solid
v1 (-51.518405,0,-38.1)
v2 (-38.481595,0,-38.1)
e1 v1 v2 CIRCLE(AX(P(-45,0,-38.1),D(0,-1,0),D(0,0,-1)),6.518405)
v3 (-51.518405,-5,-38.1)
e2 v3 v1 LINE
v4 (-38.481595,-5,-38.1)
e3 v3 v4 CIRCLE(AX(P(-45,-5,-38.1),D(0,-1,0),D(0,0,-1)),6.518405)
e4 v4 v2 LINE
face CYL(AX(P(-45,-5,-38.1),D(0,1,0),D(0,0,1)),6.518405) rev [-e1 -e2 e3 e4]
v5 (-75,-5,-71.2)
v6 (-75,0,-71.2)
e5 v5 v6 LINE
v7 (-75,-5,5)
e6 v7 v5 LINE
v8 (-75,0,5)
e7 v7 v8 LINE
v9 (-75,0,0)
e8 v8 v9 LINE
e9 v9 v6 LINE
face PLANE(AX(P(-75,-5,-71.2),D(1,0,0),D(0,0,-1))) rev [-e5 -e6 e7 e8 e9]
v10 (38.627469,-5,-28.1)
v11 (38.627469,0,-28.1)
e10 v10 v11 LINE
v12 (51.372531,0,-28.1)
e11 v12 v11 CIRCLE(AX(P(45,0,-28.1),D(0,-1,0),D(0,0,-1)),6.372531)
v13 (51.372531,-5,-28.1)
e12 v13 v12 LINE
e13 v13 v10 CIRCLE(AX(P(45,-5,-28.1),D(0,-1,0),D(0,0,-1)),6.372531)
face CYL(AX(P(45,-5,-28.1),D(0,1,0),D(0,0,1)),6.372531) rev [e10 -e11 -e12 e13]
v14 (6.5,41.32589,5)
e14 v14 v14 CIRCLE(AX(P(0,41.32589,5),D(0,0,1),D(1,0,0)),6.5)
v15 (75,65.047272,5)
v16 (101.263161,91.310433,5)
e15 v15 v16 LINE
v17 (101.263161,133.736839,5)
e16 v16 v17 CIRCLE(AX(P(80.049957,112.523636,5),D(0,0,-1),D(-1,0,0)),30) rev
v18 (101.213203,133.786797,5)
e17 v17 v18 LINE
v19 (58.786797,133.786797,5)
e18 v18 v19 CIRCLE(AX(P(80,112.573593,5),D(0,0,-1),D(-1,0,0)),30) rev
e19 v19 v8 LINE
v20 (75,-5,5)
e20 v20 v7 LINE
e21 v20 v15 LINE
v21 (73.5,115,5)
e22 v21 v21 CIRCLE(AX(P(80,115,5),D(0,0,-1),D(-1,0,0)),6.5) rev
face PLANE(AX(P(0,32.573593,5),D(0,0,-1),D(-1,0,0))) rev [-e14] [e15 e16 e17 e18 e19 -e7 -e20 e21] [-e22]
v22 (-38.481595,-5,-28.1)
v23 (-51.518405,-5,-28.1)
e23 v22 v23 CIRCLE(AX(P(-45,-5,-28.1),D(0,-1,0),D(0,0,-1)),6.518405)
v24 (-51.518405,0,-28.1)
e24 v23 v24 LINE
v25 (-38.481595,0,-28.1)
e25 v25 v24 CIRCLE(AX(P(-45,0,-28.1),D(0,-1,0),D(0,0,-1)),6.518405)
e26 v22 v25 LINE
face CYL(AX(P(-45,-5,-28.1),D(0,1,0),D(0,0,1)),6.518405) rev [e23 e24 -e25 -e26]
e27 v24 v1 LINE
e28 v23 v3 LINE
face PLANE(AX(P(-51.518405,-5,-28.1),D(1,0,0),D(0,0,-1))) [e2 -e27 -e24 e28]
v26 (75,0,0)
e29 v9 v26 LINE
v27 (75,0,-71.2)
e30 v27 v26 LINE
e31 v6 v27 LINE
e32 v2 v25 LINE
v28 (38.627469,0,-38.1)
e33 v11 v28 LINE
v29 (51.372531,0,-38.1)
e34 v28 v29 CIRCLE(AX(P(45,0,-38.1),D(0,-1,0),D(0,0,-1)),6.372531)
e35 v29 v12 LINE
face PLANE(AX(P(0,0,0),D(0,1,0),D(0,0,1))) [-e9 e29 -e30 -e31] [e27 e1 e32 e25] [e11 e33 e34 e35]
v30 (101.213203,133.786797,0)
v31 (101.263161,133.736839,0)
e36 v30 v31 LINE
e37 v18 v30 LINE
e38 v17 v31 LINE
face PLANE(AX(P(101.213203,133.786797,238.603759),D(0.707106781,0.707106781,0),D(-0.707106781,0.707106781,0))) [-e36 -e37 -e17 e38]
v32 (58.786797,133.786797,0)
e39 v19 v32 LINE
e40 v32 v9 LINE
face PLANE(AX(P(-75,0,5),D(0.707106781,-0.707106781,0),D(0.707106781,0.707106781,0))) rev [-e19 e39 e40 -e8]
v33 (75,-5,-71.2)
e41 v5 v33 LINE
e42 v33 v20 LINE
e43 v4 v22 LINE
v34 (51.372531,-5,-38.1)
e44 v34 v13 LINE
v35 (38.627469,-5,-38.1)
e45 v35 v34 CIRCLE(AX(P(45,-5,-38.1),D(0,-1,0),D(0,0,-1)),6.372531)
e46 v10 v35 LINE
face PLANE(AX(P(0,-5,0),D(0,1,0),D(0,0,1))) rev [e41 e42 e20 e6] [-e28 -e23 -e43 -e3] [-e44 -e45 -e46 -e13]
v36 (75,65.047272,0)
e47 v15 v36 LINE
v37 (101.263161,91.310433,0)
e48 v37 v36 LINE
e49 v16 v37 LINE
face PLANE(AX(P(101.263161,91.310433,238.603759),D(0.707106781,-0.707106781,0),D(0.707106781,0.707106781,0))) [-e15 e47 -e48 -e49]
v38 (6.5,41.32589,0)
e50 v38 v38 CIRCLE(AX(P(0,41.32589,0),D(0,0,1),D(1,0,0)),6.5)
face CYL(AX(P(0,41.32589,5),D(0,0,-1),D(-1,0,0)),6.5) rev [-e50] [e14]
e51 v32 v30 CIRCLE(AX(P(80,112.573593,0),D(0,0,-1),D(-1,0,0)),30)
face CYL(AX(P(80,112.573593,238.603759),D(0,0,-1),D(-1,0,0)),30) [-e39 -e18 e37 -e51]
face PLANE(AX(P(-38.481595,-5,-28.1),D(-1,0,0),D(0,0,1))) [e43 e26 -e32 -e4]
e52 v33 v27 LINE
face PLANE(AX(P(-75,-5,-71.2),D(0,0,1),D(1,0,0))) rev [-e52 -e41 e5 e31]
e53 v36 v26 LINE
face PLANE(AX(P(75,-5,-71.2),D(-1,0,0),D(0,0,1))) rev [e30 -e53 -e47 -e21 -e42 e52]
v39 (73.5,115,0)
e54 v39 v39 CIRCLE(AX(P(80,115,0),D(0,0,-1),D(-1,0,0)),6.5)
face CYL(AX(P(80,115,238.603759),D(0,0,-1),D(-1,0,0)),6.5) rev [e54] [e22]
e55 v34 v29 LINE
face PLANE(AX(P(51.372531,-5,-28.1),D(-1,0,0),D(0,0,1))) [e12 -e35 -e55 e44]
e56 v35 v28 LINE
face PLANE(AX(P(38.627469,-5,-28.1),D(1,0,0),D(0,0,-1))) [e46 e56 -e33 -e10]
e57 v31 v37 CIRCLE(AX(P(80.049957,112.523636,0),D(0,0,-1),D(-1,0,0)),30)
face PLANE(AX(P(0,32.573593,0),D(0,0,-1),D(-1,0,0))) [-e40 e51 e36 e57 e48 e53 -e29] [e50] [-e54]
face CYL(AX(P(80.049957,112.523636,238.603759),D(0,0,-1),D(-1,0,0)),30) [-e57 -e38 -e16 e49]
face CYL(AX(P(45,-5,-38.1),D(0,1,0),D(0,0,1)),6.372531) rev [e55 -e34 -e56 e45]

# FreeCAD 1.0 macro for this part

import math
import FreeCAD as App
import Part
import Sketcher

V = App.Vector
Q = App.Units.Quantity

doc = App.newDocument("Part")
params = doc.addObject("Spreadsheet::Sheet", "Params")
for row, (alias, value) in enumerate([
    ("sketch1_diameter", "13 mm"),
    ("sketch1_radius", "30 mm"),
    ("sketch1_width", "150 mm"),
    ("pad1_length", "5 mm"),
    ("sketch2_width", "150 mm"),
    ("sketch2_height", "10 mm"),
    ("sketch2_height2", "76.2 mm"),
    ("pad2_length", "5 mm"),
    ("sketch3_diameter", "20 mm"),
    ("sketch3_diameter2", "13 mm"),
    ("sketch3_radius", "30 mm"),
    ("sketch3_width", "150 mm"),
    ("pad3_length", "5 mm"),
], start=1):
    params.set(f"A{row}", alias)
    params.set(f"B{row}", "=" + value)
    params.setAlias(f"B{row}", alias)

body = doc.addObject("PartDesign::Body", "Body")

sketch1 = body.newObject("Sketcher::SketchObject", "Sketch")
sketch1.AttachmentSupport = (doc.getObject("XY_Plane"), [""])
sketch1.MapMode = "FlatFace"
sketch1.addGeometry([
    Part.LineSegment(V(-75, 0, 0), V(75, 0, 0)),
    Part.LineSegment(V(75, 0, 0), V(21, 54, 0)),
    Part.ArcOfCircle(Part.Circle(V(0, 33, 0), V(0, 0, 1), 30), math.radians(45), math.radians(135)),
    Part.LineSegment(V(-21, 54, 0), V(-75, 0, 0)),
    Part.Circle(V(0, 41, 0), V(0, 0, 1), 6),
], False)
sketch1.addConstraint([
    Sketcher.Constraint("Coincident", 0, 2, 1, 1),
    Sketcher.Constraint("Tangent", 1, 2, 2, 1),
    Sketcher.Constraint("Tangent", 2, 2, 3, 1),
    Sketcher.Constraint("Coincident", 3, 2, 0, 1),
    Sketcher.Constraint("Horizontal", 0),
    Sketcher.Constraint("Symmetric", 0, 2, 3, 2, -1, 1),
    Sketcher.Constraint("PointOnObject", 2, 3, -2),
    Sketcher.Constraint("PointOnObject", 4, 3, -2),
    Sketcher.Constraint("Perpendicular", 1, 3),
    Sketcher.Constraint("Diameter", 4, 13.0),
    Sketcher.Constraint("Radius", 2, 30.0),
    Sketcher.Constraint("DistanceX", 0, 1, 0, 2, 150.0),
    Sketcher.Constraint("DistanceY", -1, 1, 4, 3, 41.32589),
])
sketch1.setExpression("Constraints[9]", "Params.sketch1_diameter")
sketch1.setExpression("Constraints[10]", "Params.sketch1_radius")
sketch1.setExpression("Constraints[11]", "Params.sketch1_width")
pad1 = body.newObject("PartDesign::Pad", "Pad")
pad1.Profile = sketch1
pad1.setExpression("Length", "Params.pad1_length")

sketch2 = body.newObject("Sketcher::SketchObject", "Sketch001")
sketch2.AttachmentSupport = (doc.getObject("XZ_Plane"), [""])
sketch2.MapMode = "FlatFace"
sketch2.addGeometry([
    Part.LineSegment(V(-75, 5, 0), V(-75, -71, 0)),
    Part.LineSegment(V(-75, -71, 0), V(75, -71, 0)),
    Part.LineSegment(V(75, -71, 0), V(75, 5, 0)),
    Part.LineSegment(V(75, 5, 0), V(-75, 5, 0)),
    Part.ArcOfCircle(Part.Circle(V(45, -28, 0), V(0, 0, 1), 6), math.radians(0), math.radians(180)),
    Part.LineSegment(V(51, -28, 0), V(51, -38, 0)),
    Part.ArcOfCircle(Part.Circle(V(45, -38, 0), V(0, 0, 1), 6), math.radians(180), math.radians(360)),
    Part.LineSegment(V(39, -38, 0), V(39, -28, 0)),
    Part.ArcOfCircle(Part.Circle(V(-45, -28, 0), V(0, 0, 1), 7), math.radians(0), math.radians(180)),
    Part.LineSegment(V(-38, -28, 0), V(-38, -38, 0)),
    Part.ArcOfCircle(Part.Circle(V(-45, -38, 0), V(0, 0, 1), 7), math.radians(180), math.radians(360)),
    Part.LineSegment(V(-52, -38, 0), V(-52, -28, 0)),
], False)
sketch2.addConstraint([
    Sketcher.Constraint("Coincident", 0, 2, 1, 1),
    Sketcher.Constraint("Coincident", 1, 2, 2, 1),
    Sketcher.Constraint("Coincident", 2, 2, 3, 1),
    Sketcher.Constraint("Coincident", 3, 2, 0, 1),
    Sketcher.Constraint("Tangent", 4, 1, 5, 1),
    Sketcher.Constraint("Tangent", 5, 2, 6, 2),
    Sketcher.Constraint("Tangent", 6, 1, 7, 1),
    Sketcher.Constraint("Tangent", 7, 2, 4, 2),
    Sketcher.Constraint("Tangent", 8, 1, 9, 1),
    Sketcher.Constraint("Tangent", 9, 2, 10, 2),
    Sketcher.Constraint("Tangent", 10, 1, 11, 1),
    Sketcher.Constraint("Tangent", 11, 2, 8, 2),
    Sketcher.Constraint("Vertical", 0),
    Sketcher.Constraint("Horizontal", 1),
    Sketcher.Constraint("Vertical", 2),
    Sketcher.Constraint("Horizontal", 3),
    Sketcher.Constraint("Vertical", 5),
    Sketcher.Constraint("Vertical", 7),
    Sketcher.Constraint("Vertical", 9),
    Sketcher.Constraint("Vertical", 11),
    Sketcher.Constraint("Symmetric", 4, 3, 8, 3, -2),
    Sketcher.Constraint("Horizontal", 6, 3, 10, 3),
    Sketcher.Constraint("DistanceX", 1, 1, 1, 2, 150.0),
    Sketcher.Constraint("DistanceY", 5, 2, 5, 1, 10.0),
    Sketcher.Constraint("DistanceY", 0, 2, 0, 1, 76.2),
    Sketcher.Constraint("DistanceX", -1, 1, 4, 3, 45.0),
    Sketcher.Constraint("DistanceX", 0, 2, -1, 1, 75.0),
    Sketcher.Constraint("DistanceY", -1, 1, 2, 2, 5.0),
    Sketcher.Constraint("DistanceY", 4, 3, -1, 1, 28.1),
    Sketcher.Constraint("Radius", 4, 6.372531),
    Sketcher.Constraint("Radius", 8, 6.518405),
])
sketch2.setExpression("Constraints[22]", "Params.sketch2_width")
sketch2.setExpression("Constraints[23]", "Params.sketch2_height")
sketch2.setExpression("Constraints[24]", "Params.sketch2_height2")
pad2 = body.newObject("PartDesign::Pad", "Pad001")
pad2.Profile = sketch2
pad2.setExpression("Length", "Params.pad2_length")

sketch3 = body.newObject("Sketcher::SketchObject", "Sketch002")
sketch3.AttachmentSupport = (doc.getObject("XY_Plane"), [""])
sketch3.MapMode = "FlatFace"
sketch3.addGeometry([
    Part.LineSegment(V(-75, 0, 0), V(58.79, 133.79, 0)),
    Part.ArcOfCircle(Part.Circle(V(80, 112.57, 0), V(0, 0, 1), 30), math.radians(45), math.radians(135)),
    Part.LineSegment(V(101.21, 133.79, 0), V(101.26, 133.74, 0)),
    Part.ArcOfCircle(Part.Circle(V(80.05, 112.52, 0), V(0, 0, 1), 30), math.radians(-45), math.radians(45)),
    Part.LineSegment(V(101.26, 91.31, 0), V(75, 65.05, 0)),
    Part.LineSegment(V(75, 65.05, 0), V(75, 0, 0)),
    Part.LineSegment(V(75, 0, 0), V(-75, 0, 0)),
    Part.Circle(V(0, 41.33, 0), V(0, 0, 1), 10),
    Part.Circle(V(80, 115, 0), V(0, 0, 1), 6.5),
], False)
sketch3.addConstraint([
    Sketcher.Constraint("Tangent", 0, 2, 1, 2),
    Sketcher.Constraint("Tangent", 1, 1, 2, 1),
    Sketcher.Constraint("Tangent", 2, 2, 3, 2),
    Sketcher.Constraint("Tangent", 3, 1, 4, 1),
    Sketcher.Constraint("Coincident", 4, 2, 5, 1),
    Sketcher.Constraint("Coincident", 5, 2, 6, 1),
    Sketcher.Constraint("Coincident", 6, 2, 0, 1),
    Sketcher.Constraint("Vertical", 5),
    Sketcher.Constraint("Horizontal", 6),
    Sketcher.Constraint("Equal", 1, 3),
    Sketcher.Constraint("Symmetric", 5, 2, 6, 2, -1, 1),
    Sketcher.Constraint("PointOnObject", 7, 3, -2),
    Sketcher.Constraint("Parallel", 0, 4),
    Sketcher.Constraint("Horizontal", 0, 2, 1, 1),
    Sketcher.Constraint("Vertical", 1, 3, 8, 3),
    Sketcher.Constraint("Diameter", 7, 20.0),
    Sketcher.Constraint("Diameter", 8, 13.0),
    Sketcher.Constraint("Radius", 1, 30.0),
    Sketcher.Constraint("DistanceX", 6, 2, 6, 1, 150.0),
    Sketcher.Constraint("Angle", 0, Q("45 deg")),
    Sketcher.Constraint("DistanceX", -1, 1, 1, 3, 80.0),
    Sketcher.Constraint("DistanceY", -1, 1, 8, 3, 115.0),
    Sketcher.Constraint("DistanceY", 5, 2, 5, 1, 65.047272),
    Sketcher.Constraint("DistanceY", -1, 1, 7, 3, 41.32589),
])
sketch3.setExpression("Constraints[15]", "Params.sketch3_diameter")
sketch3.setExpression("Constraints[16]", "Params.sketch3_diameter2")
sketch3.setExpression("Constraints[17]", "Params.sketch3_radius")
sketch3.setExpression("Constraints[18]", "Params.sketch3_width")
pad3 = body.newObject("PartDesign::Pad", "Pad002")
pad3.Profile = sketch3
pad3.setExpression("Length", "Params.pad3_length")

doc.recompute()
